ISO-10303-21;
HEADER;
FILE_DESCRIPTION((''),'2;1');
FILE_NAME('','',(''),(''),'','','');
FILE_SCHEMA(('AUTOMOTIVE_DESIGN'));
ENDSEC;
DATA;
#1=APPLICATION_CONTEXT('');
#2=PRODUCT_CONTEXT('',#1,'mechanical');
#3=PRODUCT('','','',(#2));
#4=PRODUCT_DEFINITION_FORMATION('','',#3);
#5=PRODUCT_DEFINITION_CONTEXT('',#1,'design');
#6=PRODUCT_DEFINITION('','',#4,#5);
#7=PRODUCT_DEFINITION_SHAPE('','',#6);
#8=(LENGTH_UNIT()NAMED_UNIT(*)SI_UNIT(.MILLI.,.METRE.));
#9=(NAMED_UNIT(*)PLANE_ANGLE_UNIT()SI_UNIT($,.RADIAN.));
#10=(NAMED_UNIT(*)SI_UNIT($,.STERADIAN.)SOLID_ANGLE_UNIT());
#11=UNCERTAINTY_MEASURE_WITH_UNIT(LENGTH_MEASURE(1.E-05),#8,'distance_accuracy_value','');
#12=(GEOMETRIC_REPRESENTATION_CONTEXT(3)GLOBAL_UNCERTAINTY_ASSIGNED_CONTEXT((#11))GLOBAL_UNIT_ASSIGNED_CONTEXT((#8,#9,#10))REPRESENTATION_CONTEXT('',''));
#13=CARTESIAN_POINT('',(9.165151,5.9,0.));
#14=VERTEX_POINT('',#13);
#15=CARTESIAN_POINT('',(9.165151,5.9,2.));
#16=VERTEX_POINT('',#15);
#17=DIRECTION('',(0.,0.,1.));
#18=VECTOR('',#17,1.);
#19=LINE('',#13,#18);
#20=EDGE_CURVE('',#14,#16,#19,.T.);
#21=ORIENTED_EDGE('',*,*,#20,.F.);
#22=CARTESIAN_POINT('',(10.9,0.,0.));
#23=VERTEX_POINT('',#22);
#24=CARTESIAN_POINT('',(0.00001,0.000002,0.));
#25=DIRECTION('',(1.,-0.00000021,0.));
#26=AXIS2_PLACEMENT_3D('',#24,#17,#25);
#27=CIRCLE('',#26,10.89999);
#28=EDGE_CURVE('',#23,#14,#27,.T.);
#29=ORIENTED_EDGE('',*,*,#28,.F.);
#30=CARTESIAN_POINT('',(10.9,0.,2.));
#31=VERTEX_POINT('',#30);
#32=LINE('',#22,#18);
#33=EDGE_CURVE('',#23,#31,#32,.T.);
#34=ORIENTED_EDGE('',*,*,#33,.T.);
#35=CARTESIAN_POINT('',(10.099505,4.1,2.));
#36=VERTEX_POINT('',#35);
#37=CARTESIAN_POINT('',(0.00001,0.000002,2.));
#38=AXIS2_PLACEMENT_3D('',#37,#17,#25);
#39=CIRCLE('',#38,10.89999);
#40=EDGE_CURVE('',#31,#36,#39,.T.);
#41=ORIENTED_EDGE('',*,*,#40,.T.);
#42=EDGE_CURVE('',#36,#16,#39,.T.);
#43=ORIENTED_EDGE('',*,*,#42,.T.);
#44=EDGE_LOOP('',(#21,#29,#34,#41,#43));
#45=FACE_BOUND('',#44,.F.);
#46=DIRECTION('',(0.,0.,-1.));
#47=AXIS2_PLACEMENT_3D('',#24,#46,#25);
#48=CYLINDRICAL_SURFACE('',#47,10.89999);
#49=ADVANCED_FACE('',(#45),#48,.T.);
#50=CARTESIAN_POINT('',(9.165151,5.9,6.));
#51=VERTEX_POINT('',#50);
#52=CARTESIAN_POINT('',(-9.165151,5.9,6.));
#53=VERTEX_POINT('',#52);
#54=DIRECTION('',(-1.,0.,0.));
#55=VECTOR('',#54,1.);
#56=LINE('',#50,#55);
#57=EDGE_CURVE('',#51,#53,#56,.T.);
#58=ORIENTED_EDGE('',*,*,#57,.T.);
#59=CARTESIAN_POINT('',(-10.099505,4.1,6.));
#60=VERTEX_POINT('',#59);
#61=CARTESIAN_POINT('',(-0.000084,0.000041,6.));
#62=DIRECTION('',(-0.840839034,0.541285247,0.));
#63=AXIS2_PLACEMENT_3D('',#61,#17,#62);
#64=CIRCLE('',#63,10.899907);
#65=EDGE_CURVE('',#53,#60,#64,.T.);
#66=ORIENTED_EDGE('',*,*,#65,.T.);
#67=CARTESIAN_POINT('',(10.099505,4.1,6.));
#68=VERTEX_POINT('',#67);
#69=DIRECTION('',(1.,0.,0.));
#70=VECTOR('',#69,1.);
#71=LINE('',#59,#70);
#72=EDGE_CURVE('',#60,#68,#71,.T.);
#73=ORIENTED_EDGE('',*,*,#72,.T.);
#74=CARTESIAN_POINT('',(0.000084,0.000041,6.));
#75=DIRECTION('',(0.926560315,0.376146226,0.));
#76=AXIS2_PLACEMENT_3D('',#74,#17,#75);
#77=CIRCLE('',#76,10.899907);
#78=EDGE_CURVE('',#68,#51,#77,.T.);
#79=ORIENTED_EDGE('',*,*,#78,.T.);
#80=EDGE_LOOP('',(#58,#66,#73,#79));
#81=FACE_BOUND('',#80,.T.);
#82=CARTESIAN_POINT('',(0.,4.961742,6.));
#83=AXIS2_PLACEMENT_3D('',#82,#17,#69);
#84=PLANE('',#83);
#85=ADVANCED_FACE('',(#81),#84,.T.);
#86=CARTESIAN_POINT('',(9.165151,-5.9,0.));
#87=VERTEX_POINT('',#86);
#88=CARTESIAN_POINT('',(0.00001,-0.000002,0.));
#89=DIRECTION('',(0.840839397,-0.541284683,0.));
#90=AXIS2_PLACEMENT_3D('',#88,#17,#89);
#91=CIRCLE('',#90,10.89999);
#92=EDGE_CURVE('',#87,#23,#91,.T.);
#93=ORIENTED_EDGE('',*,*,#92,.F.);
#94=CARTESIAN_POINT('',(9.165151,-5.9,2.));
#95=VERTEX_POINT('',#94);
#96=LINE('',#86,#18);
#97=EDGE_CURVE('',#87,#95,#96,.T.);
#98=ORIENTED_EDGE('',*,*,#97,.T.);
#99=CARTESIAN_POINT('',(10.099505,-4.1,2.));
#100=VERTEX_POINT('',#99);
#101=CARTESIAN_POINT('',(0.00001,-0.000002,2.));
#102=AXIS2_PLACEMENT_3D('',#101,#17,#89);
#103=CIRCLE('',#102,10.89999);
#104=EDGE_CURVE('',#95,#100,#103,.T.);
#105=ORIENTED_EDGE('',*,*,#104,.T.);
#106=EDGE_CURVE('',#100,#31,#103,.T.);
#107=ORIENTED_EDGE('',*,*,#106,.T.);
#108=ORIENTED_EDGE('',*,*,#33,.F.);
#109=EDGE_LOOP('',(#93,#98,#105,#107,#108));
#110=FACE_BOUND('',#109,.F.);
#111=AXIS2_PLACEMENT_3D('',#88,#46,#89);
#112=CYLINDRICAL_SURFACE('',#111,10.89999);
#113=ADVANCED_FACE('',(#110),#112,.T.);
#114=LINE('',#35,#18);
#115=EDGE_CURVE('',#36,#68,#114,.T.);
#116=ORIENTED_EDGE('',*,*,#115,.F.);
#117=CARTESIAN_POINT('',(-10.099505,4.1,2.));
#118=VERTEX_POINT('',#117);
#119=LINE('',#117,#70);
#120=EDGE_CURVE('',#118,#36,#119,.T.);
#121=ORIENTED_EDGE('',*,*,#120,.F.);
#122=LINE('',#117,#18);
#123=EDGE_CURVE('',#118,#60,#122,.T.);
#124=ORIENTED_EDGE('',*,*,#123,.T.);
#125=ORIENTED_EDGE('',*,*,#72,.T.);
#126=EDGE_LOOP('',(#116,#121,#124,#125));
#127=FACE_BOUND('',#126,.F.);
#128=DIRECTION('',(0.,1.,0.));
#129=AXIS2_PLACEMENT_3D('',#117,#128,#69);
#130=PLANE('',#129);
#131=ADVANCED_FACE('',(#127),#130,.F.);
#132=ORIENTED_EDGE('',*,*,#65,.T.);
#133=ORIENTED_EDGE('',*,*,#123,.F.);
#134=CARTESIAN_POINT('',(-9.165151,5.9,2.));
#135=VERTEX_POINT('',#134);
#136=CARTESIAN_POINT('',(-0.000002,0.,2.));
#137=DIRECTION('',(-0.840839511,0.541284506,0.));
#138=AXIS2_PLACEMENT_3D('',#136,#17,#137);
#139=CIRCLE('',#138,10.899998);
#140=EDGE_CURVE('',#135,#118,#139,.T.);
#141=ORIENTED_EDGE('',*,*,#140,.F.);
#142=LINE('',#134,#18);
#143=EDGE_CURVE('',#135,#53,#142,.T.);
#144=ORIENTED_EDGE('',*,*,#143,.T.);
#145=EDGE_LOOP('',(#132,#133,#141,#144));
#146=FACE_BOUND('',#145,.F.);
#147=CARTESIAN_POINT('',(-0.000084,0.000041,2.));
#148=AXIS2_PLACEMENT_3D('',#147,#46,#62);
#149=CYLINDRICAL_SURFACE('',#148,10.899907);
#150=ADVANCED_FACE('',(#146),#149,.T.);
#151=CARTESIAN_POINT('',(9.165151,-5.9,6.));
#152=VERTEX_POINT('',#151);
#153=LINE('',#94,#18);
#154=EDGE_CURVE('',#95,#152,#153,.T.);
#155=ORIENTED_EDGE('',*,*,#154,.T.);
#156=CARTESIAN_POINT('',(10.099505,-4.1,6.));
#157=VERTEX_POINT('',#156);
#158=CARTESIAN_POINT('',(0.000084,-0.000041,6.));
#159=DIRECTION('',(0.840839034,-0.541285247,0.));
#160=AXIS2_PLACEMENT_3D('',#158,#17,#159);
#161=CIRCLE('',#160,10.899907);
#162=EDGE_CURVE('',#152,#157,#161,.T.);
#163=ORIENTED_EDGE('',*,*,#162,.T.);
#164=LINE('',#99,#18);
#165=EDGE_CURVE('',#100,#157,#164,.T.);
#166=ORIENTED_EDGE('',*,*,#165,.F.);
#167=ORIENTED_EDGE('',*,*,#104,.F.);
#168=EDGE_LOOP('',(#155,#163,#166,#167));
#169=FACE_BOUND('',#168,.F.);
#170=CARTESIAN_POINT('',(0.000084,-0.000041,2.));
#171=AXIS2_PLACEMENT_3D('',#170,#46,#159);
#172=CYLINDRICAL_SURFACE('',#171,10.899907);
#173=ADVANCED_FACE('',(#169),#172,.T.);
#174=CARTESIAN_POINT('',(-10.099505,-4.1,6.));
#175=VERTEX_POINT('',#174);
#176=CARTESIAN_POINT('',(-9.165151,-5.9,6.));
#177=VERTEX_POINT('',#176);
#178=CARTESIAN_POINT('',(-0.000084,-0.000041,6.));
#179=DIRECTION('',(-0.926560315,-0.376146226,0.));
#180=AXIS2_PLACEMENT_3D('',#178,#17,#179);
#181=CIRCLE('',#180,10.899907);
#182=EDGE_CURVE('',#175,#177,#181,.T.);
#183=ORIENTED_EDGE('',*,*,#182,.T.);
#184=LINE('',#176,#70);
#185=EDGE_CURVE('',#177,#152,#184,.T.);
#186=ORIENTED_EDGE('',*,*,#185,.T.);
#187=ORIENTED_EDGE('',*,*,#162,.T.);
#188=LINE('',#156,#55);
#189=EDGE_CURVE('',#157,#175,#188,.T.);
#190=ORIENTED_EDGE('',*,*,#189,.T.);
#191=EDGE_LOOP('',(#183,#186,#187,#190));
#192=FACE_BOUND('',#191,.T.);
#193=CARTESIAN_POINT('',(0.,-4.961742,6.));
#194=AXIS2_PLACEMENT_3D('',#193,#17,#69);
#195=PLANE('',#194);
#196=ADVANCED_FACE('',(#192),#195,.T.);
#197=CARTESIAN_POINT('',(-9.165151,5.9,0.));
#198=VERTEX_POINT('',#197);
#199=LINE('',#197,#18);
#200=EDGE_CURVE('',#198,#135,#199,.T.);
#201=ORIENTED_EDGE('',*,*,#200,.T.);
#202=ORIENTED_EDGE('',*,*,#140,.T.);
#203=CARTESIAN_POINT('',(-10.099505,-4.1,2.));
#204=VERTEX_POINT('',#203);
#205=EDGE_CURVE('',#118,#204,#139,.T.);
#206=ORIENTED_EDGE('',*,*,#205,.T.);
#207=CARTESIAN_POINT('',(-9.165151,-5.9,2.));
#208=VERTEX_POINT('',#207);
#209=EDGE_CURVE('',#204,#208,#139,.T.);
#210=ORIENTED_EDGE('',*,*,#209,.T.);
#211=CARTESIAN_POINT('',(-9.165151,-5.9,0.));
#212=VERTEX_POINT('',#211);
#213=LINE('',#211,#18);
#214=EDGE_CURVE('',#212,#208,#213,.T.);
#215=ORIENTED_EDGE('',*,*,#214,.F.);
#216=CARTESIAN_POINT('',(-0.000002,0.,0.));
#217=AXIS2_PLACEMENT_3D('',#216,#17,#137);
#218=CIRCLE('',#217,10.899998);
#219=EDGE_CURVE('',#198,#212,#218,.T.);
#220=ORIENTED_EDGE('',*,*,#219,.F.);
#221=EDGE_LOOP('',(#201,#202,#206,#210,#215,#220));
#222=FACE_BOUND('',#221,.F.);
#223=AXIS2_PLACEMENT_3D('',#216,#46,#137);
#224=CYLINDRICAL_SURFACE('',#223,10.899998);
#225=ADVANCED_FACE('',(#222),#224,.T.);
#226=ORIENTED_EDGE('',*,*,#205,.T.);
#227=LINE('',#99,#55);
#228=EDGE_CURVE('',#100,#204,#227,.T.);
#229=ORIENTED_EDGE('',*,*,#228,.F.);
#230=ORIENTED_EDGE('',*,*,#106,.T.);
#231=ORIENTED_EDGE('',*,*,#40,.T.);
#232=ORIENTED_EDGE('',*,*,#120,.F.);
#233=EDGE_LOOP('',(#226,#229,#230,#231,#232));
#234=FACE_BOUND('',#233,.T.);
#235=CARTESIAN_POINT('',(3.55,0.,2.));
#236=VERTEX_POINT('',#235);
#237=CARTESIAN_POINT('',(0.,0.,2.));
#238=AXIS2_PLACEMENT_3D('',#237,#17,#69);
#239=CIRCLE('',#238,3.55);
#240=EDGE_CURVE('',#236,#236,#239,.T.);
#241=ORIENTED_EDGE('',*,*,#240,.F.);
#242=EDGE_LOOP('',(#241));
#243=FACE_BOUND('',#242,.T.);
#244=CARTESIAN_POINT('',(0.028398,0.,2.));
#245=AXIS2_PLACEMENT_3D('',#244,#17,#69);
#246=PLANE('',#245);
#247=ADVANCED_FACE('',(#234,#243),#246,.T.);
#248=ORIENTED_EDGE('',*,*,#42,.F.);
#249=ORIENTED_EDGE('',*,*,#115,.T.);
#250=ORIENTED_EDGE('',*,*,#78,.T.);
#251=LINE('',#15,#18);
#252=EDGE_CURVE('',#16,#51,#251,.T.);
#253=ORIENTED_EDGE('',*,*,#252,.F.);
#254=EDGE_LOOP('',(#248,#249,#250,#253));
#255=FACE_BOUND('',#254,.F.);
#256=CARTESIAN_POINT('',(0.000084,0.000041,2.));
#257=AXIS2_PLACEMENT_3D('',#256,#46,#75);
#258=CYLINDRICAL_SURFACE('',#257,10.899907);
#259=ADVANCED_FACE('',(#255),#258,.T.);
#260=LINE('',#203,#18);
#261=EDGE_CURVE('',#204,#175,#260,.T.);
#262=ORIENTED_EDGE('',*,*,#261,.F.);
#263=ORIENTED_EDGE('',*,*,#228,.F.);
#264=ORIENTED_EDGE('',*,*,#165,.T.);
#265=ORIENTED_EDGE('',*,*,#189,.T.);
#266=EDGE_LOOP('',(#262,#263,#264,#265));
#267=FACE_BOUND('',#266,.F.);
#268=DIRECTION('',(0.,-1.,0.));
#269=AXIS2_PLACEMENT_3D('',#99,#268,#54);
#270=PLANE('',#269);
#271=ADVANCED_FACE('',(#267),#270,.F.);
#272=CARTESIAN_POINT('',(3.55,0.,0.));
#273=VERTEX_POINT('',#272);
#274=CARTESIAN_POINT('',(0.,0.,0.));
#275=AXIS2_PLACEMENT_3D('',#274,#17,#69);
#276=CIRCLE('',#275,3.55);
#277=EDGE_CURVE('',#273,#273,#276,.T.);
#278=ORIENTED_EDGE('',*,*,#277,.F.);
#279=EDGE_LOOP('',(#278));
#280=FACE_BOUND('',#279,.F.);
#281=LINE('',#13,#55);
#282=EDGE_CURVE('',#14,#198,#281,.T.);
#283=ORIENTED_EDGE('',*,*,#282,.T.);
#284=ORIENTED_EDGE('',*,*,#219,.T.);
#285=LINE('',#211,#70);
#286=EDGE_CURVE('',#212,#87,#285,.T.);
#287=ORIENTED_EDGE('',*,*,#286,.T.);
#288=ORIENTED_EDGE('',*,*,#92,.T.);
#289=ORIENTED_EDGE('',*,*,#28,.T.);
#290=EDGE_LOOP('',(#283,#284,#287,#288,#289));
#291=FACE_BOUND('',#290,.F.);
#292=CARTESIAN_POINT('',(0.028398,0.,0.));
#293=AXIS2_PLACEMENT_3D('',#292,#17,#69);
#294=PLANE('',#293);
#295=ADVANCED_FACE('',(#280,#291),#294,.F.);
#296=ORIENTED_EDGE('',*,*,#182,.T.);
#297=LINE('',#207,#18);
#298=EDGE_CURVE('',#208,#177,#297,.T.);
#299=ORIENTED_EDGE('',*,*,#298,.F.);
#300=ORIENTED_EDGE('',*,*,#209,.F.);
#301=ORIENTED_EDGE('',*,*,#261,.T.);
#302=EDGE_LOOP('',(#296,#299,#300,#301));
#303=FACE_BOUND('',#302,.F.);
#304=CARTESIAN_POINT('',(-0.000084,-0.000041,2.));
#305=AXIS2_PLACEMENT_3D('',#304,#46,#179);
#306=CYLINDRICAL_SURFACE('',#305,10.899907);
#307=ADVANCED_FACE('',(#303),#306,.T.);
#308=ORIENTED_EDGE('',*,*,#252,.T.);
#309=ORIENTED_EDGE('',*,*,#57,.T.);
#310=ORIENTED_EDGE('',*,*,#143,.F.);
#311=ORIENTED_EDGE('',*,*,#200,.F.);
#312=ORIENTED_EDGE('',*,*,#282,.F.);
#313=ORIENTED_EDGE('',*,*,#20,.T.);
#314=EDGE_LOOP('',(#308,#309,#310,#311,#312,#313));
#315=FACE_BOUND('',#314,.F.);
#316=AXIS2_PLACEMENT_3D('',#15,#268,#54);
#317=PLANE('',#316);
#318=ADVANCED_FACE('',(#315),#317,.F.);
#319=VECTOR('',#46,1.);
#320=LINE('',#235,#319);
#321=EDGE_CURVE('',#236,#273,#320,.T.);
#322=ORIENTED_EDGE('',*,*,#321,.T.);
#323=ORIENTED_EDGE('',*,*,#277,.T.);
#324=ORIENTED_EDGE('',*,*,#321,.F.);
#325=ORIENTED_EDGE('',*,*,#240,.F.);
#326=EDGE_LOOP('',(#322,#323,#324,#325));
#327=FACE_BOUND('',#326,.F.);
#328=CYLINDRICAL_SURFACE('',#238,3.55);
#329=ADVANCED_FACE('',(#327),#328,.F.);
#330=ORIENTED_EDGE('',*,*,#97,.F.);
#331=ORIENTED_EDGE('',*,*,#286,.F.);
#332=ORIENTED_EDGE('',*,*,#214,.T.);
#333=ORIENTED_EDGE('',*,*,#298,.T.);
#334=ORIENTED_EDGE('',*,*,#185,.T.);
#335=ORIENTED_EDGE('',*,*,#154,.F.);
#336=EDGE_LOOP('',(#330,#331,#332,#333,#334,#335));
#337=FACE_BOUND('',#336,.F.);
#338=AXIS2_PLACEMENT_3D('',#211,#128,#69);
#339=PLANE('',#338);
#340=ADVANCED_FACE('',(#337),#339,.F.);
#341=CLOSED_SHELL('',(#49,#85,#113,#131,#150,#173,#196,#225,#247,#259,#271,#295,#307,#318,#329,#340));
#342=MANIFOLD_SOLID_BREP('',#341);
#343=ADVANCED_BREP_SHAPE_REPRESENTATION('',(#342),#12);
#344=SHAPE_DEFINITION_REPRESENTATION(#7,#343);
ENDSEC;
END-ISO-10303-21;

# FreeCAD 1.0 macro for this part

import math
import FreeCAD as App
import Part
import Sketcher

V = App.Vector
Q = App.Units.Quantity

doc = App.newDocument("Part")
body = doc.addObject("PartDesign::Body", "Body")

sketch1 = doc.addObject("Sketcher::SketchObject", "Sketch")
body.addObject(sketch1)
sketch1.AttachmentSupport = (doc.XY_Plane, [""])
sketch1.MapMode = "FlatFace"
sketch1.addGeometry(Part.ArcOfCircle(Part.Circle(V(0, 0, 0), V(0, 0, 1), 11), math.radians(-33), math.radians(0)), False)
sketch1.addGeometry(Part.ArcOfCircle(Part.Circle(V(0, 0, 0), V(0, 0, 1), 11), math.radians(0), math.radians(33)), False)
sketch1.addGeometry(Part.LineSegment(V(9, 6, 0), V(-9, 6, 0)), False)
sketch1.addGeometry(Part.ArcOfCircle(Part.Circle(V(0, 0, 0), V(0, 0, 1), 11), math.radians(147), math.radians(213)), False)
sketch1.addGeometry(Part.LineSegment(V(-9, -6, 0), V(9, -6, 0)), False)
sketch1.addConstraint(Sketcher.Constraint("Tangent", 0, 2, 1, 1))
sketch1.addConstraint(Sketcher.Constraint("Coincident", 1, 2, 2, 1))
sketch1.addConstraint(Sketcher.Constraint("Coincident", 2, 2, 3, 1))
sketch1.addConstraint(Sketcher.Constraint("Coincident", 3, 2, 4, 1))
sketch1.addConstraint(Sketcher.Constraint("Coincident", 4, 2, 0, 1))
sketch1.addConstraint(Sketcher.Constraint("Horizontal", 2))
sketch1.addConstraint(Sketcher.Constraint("Horizontal", 4))
sketch1.addConstraint(Sketcher.Constraint("Coincident", 3, 3, -1, 1))
sketch1.addConstraint(Sketcher.Constraint("Equal", 0, 1))
sketch1.addConstraint(Sketcher.Constraint("Symmetric", 1, 2, 3, 2, -1, 1))
sketch1.addConstraint(Sketcher.Constraint("PointOnObject", 0, 2, -1))
sketch1.addConstraint(Sketcher.Constraint("Vertical", 1, 2, 4, 2))
sketch1.addConstraint(Sketcher.Constraint("DistanceX", -1, 1, 0, 2, Q("10.9 mm")))
sketch1.addConstraint(Sketcher.Constraint("DistanceY", -1, 1, 1, 2, Q("5.9 mm")))
sketch1.addConstraint(Sketcher.Constraint("Radius", 0, Q("10.89999 mm")))
pad1 = doc.addObject("PartDesign::Pad", "Pad")
body.addObject(pad1)
pad1.Profile = sketch1
pad1.Length = 2

sketch2 = doc.addObject("Sketcher::SketchObject", "Sketch001")
body.addObject(sketch2)
sketch2.AttachmentSupport = (doc.XY_Plane, [""])
sketch2.MapMode = "FlatFace"
sketch2.AttachmentOffset = App.Placement(V(0, 0, 2), App.Rotation())
sketch2.addGeometry(Part.Circle(V(0, 0, 0), V(0, 0, 1), 3.5), False)
sketch2.addConstraint(Sketcher.Constraint("Coincident", 0, 3, -1, 1))
sketch2.addConstraint(Sketcher.Constraint("Diameter", 0, Q("7.1 mm")))
pocket1 = doc.addObject("PartDesign::Pocket", "Pocket")
body.addObject(pocket1)
pocket1.Profile = sketch2
pocket1.Length = 25

sketch3 = doc.addObject("Sketcher::SketchObject", "Sketch002")
body.addObject(sketch3)
sketch3.AttachmentSupport = (doc.XY_Plane, [""])
sketch3.MapMode = "FlatFace"
sketch3.AttachmentOffset = App.Placement(V(0, 0, 2), App.Rotation())
sketch3.addGeometry(Part.LineSegment(V(-10.099505, 4.1, 0), V(10.099505, 4.1, 0)), False)
sketch3.addGeometry(Part.ArcOfCircle(Part.Circle(V(0.000084, 0.000041, 0), V(0, 0, 1), 10.899907), math.radians(22.095174), math.radians(32.771174)), False)
sketch3.addGeometry(Part.LineSegment(V(9.165151, 5.9, 0), V(-9.165151, 5.9, 0)), False)
sketch3.addGeometry(Part.ArcOfCircle(Part.Circle(V(-0.000084, 0.000041, 0), V(0, 0, 1), 10.899907), math.radians(147.228826), math.radians(157.904826)), False)
sketch3.addGeometry(Part.ArcOfCircle(Part.Circle(V(0.000084, -0.000041, 0), V(0, 0, 1), 10.899907), math.radians(-32.771174), math.radians(-22.095174)), False)
sketch3.addGeometry(Part.LineSegment(V(10.099505, -4.1, 0), V(-10.099505, -4.1, 0)), False)
sketch3.addGeometry(Part.ArcOfCircle(Part.Circle(V(-0.000084, -0.000041, 0), V(0, 0, 1), 10.899907), math.radians(-157.904826), math.radians(-147.228826)), False)
sketch3.addGeometry(Part.LineSegment(V(-9.165151, -5.9, 0), V(9.165151, -5.9, 0)), False)
sketch3.addConstraint(Sketcher.Constraint("Coincident", 0, 2, 1, 1))
sketch3.addConstraint(Sketcher.Constraint("Coincident", 1, 2, 2, 1))
sketch3.addConstraint(Sketcher.Constraint("Coincident", 2, 2, 3, 1))
sketch3.addConstraint(Sketcher.Constraint("Coincident", 3, 2, 0, 1))
sketch3.addConstraint(Sketcher.Constraint("Coincident", 4, 2, 5, 1))
sketch3.addConstraint(Sketcher.Constraint("Coincident", 5, 2, 6, 1))
sketch3.addConstraint(Sketcher.Constraint("Coincident", 6, 2, 7, 1))
sketch3.addConstraint(Sketcher.Constraint("Coincident", 7, 2, 4, 1))
sketch3.addConstraint(Sketcher.Constraint("Horizontal", 0))
sketch3.addConstraint(Sketcher.Constraint("Horizontal", 2))
sketch3.addConstraint(Sketcher.Constraint("Horizontal", 5))
sketch3.addConstraint(Sketcher.Constraint("Horizontal", 7))
sketch3.addConstraint(Sketcher.Constraint("Equal", 1, 3))
sketch3.addConstraint(Sketcher.Constraint("Equal", 3, 4))
sketch3.addConstraint(Sketcher.Constraint("Equal", 4, 6))
sketch3.addConstraint(Sketcher.Constraint("Symmetric", 3, 3, 4, 3, -1, 1))
sketch3.addConstraint(Sketcher.Constraint("Symmetric", 1, 3, 6, 3, -1, 1))
sketch3.addConstraint(Sketcher.Constraint("Symmetric", 1, 3, 3, 3, -2))
sketch3.addConstraint(Sketcher.Constraint("Vertical", 0, 2, 4, 2))
sketch3.addConstraint(Sketcher.Constraint("Vertical", 2, 2, 6, 2))
sketch3.addConstraint(Sketcher.Constraint("DistanceY", 4, 2, 1, 2, Q("10 mm")))
sketch3.addConstraint(Sketcher.Constraint("DistanceY", -1, 1, 0, 2, Q("4.1 mm")))
sketch3.addConstraint(Sketcher.Constraint("DistanceX", 2, 2, 2, 1, Q("18.330302 mm")))
sketch3.addConstraint(Sketcher.Constraint("Radius", 1, Q("10.899907 mm")))
sketch3.addConstraint(Sketcher.Constraint("DistanceX", 0, 1, 0, 2, Q("20.19901 mm")))
pad2 = doc.addObject("PartDesign::Pad", "Pad001")
body.addObject(pad2)
pad2.Profile = sketch3
pad2.Length = 4

doc.recompute()
